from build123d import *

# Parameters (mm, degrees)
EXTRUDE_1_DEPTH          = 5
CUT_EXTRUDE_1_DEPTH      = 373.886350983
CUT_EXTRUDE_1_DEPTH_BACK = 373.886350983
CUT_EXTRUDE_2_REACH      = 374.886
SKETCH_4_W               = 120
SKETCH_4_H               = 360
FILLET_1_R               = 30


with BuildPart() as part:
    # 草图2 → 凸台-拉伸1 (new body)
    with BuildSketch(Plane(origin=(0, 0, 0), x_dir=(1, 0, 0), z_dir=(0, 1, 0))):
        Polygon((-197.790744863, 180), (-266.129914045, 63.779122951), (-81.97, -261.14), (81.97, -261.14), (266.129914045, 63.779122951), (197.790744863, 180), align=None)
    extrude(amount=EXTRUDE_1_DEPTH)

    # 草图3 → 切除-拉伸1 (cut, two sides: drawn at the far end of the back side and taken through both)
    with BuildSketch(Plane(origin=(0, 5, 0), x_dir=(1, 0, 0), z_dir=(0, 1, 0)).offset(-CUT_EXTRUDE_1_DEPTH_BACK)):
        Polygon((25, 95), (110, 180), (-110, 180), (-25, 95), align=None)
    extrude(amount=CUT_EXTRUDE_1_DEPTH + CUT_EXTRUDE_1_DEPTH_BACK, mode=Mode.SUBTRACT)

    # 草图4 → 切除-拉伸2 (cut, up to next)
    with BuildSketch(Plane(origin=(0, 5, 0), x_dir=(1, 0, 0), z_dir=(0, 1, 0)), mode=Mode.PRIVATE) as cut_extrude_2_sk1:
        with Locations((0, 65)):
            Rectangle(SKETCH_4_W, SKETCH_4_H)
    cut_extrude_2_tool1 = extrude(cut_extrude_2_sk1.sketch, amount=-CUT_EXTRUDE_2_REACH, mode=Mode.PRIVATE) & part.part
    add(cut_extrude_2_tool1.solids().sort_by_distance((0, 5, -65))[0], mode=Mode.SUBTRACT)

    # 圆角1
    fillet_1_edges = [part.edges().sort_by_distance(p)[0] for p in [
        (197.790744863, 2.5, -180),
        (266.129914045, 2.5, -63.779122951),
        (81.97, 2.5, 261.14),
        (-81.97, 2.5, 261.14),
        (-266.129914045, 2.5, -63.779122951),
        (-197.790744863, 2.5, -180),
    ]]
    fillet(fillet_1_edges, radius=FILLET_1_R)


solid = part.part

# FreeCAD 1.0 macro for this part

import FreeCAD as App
import Part
import Sketcher


def edges_at(feature, points):
    """Names of the edges that pass closest to the given points."""
    edges = feature.Shape.Edges
    near = lambda p: min(range(len(edges)), key=lambda i: edges[i].distToShape(Part.Vertex(*p))[0])
    return sorted({f"Edge{near(p) + 1}" for p in points})

doc = App.newDocument("Part")
params = doc.addObject("Spreadsheet::Sheet", "Params")
for row, (alias, value) in enumerate([
    ("sketch1_width", "163.94 mm"),
    ("sketch1_length", "373.48 mm"),
    ("pad1_length", "5 mm"),
    ("sketch2_width", "220 mm"),
    ("sketch2_width2", "50 mm"),
    ("sketch3_width", "120 mm"),
    ("sketch3_height", "360 mm"),
    ("fillet_radius", "30 mm"),
], start=1):
    params.set(f"A{row}", alias)
    params.set(f"B{row}", "=" + value)
    params.setAlias(f"B{row}", alias)

body = doc.addObject("PartDesign::Body", "Body")

# Sketch on XZ plane
sketch1 = body.newObject("Sketcher::SketchObject", "Sketch")
sketch1.AttachmentSupport = (doc.getObject("XZ_Plane"), [""])
sketch1.MapMode = "FlatFace"
sketch1.addGeometry(Part.LineSegment(App.Vector(-198, -180, 0), App.Vector(-266, -64, 0)), False)
sketch1.addGeometry(Part.LineSegment(App.Vector(-266, -64, 0), App.Vector(-82, 261, 0)), False)
sketch1.addGeometry(Part.LineSegment(App.Vector(-82, 261, 0), App.Vector(82, 261, 0)), False)
sketch1.addGeometry(Part.LineSegment(App.Vector(82, 261, 0), App.Vector(266, -64, 0)), False)
sketch1.addGeometry(Part.LineSegment(App.Vector(266, -64, 0), App.Vector(198, -180, 0)), False)
sketch1.addGeometry(Part.LineSegment(App.Vector(198, -180, 0), App.Vector(-198, -180, 0)), False)
sketch1.addConstraint(Sketcher.Constraint("Coincident", 0, 2, 1, 1))
sketch1.addConstraint(Sketcher.Constraint("Coincident", 1, 2, 2, 1))
sketch1.addConstraint(Sketcher.Constraint("Coincident", 2, 2, 3, 1))
sketch1.addConstraint(Sketcher.Constraint("Coincident", 3, 2, 4, 1))
sketch1.addConstraint(Sketcher.Constraint("Coincident", 4, 2, 5, 1))
sketch1.addConstraint(Sketcher.Constraint("Coincident", 5, 2, 0, 1))
sketch1.addConstraint(Sketcher.Constraint("Horizontal", 2))
sketch1.addConstraint(Sketcher.Constraint("Horizontal", 5))
sketch1.addConstraint(Sketcher.Constraint("Symmetric", 0, 2, 3, 2, -2))
sketch1.addConstraint(Sketcher.Constraint("Equal", 1, 3))
sketch1.addConstraint(Sketcher.Constraint("Equal", 0, 4))
sketch1.addConstraint(Sketcher.Constraint("DistanceY", 4, 2, -1, 1, 180.0))
sketch1.addConstraint(Sketcher.Constraint("DistanceX", 2, 1, 2, 2, 163.94))
sketch1.addConstraint(Sketcher.Constraint("Distance", 1, 373.48))
sketch1.addConstraint(Sketcher.Constraint("DistanceY", -1, 1, 1, 2, 261.14))
sketch1.addConstraint(Sketcher.Constraint("DistanceX", 5, 2, 5, 1, 395.58149))
sketch1.addConstraint(Sketcher.Constraint("DistanceX", 0, 2, 3, 2, 532.259828))
sketch1.setExpression("Constraints[12]", "Params.sketch1_width")
sketch1.setExpression("Constraints[13]", "Params.sketch1_length")
pad1 = body.newObject("PartDesign::Pad", "Pad")
pad1.Profile = sketch1
pad1.setExpression("Length", "Params.pad1_length")
pad1.Reversed = True

# Sketch on XZ plane
sketch2 = body.newObject("Sketcher::SketchObject", "Sketch001")
sketch2.AttachmentSupport = (doc.getObject("XZ_Plane"), [""])
sketch2.MapMode = "FlatFace"
sketch2.AttachmentOffset = App.Placement(App.Vector(0, 0, -5), App.Rotation())
sketch2.addGeometry(Part.LineSegment(App.Vector(25, -95, 0), App.Vector(110, -180, 0)), False)
sketch2.addGeometry(Part.LineSegment(App.Vector(110, -180, 0), App.Vector(-110, -180, 0)), False)
sketch2.addGeometry(Part.LineSegment(App.Vector(-110, -180, 0), App.Vector(-25, -95, 0)), False)
sketch2.addGeometry(Part.LineSegment(App.Vector(-25, -95, 0), App.Vector(25, -95, 0)), False)
sketch2.addConstraint(Sketcher.Constraint("Coincident", 0, 2, 1, 1))
sketch2.addConstraint(Sketcher.Constraint("Coincident", 1, 2, 2, 1))
sketch2.addConstraint(Sketcher.Constraint("Coincident", 2, 2, 3, 1))
sketch2.addConstraint(Sketcher.Constraint("Coincident", 3, 2, 0, 1))
sketch2.addConstraint(Sketcher.Constraint("Horizontal", 1))
sketch2.addConstraint(Sketcher.Constraint("Horizontal", 3))
sketch2.addConstraint(Sketcher.Constraint("Perpendicular", 0, 2))
sketch2.addConstraint(Sketcher.Constraint("Equal", 0, 2))
sketch2.addConstraint(Sketcher.Constraint("DistanceX", 1, 2, 1, 1, 220.0))
sketch2.addConstraint(Sketcher.Constraint("DistanceX", 3, 1, 3, 2, 50.0))
sketch2.addConstraint(Sketcher.Constraint("DistanceX", -1, 1, 0, 2, 110.0))
sketch2.addConstraint(Sketcher.Constraint("DistanceY", 0, 2, -1, 1, 180.0))
sketch2.setExpression("Constraints[8]", "Params.sketch2_width")
sketch2.setExpression("Constraints[9]", "Params.sketch2_width2")
pocket1 = body.newObject("PartDesign::Pocket", "Pocket")
pocket1.Profile = sketch2
pocket1.Type = "ThroughAll"
pocket1.Midplane = True

# Sketch on XZ plane
sketch3 = body.newObject("Sketcher::SketchObject", "Sketch002")
sketch3.AttachmentSupport = (doc.getObject("XZ_Plane"), [""])
sketch3.MapMode = "FlatFace"
sketch3.AttachmentOffset = App.Placement(App.Vector(0, 0, -5), App.Rotation())
sketch3.addGeometry(Part.LineSegment(App.Vector(-60, -245, 0), App.Vector(-60, 115, 0)), False)
sketch3.addGeometry(Part.LineSegment(App.Vector(-60, 115, 0), App.Vector(60, 115, 0)), False)
sketch3.addGeometry(Part.LineSegment(App.Vector(60, 115, 0), App.Vector(60, -245, 0)), False)
sketch3.addGeometry(Part.LineSegment(App.Vector(60, -245, 0), App.Vector(-60, -245, 0)), False)
sketch3.addConstraint(Sketcher.Constraint("Coincident", 0, 2, 1, 1))
sketch3.addConstraint(Sketcher.Constraint("Coincident", 1, 2, 2, 1))
sketch3.addConstraint(Sketcher.Constraint("Coincident", 2, 2, 3, 1))
sketch3.addConstraint(Sketcher.Constraint("Coincident", 3, 2, 0, 1))
sketch3.addConstraint(Sketcher.Constraint("Vertical", 0))
sketch3.addConstraint(Sketcher.Constraint("Horizontal", 1))
sketch3.addConstraint(Sketcher.Constraint("Vertical", 2))
sketch3.addConstraint(Sketcher.Constraint("Horizontal", 3))
sketch3.addConstraint(Sketcher.Constraint("DistanceX", 1, 1, 1, 2, 120.0))
sketch3.addConstraint(Sketcher.Constraint("DistanceY", 0, 1, 0, 2, 360.0))
sketch3.addConstraint(Sketcher.Constraint("DistanceX", 0, 2, -1, 1, 60.0))
sketch3.addConstraint(Sketcher.Constraint("DistanceY", -1, 1, 0, 2, 115.0))
sketch3.setExpression("Constraints[8]", "Params.sketch3_width")
sketch3.setExpression("Constraints[9]", "Params.sketch3_height")
pocket2 = body.newObject("PartDesign::Pocket", "Pocket001")
pocket2.Profile = sketch3
pocket2.Type = "UpToFirst"
pocket2.Reversed = True
doc.recompute()

fillet = body.newObject("PartDesign::Fillet", "Fillet")
fillet.Base = (pocket2, edges_at(pocket2, [
    (197.791, 2.5, -180),
    (266.13, 2.5, -63.779),
    (81.97, 2.5, 261.14),
    (-81.97, 2.5, 261.14),
    (-266.13, 2.5, -63.779),
    (-197.791, 2.5, -180),
]))
fillet.setExpression("Radius", "Params.fillet_radius")

doc.recompute()
